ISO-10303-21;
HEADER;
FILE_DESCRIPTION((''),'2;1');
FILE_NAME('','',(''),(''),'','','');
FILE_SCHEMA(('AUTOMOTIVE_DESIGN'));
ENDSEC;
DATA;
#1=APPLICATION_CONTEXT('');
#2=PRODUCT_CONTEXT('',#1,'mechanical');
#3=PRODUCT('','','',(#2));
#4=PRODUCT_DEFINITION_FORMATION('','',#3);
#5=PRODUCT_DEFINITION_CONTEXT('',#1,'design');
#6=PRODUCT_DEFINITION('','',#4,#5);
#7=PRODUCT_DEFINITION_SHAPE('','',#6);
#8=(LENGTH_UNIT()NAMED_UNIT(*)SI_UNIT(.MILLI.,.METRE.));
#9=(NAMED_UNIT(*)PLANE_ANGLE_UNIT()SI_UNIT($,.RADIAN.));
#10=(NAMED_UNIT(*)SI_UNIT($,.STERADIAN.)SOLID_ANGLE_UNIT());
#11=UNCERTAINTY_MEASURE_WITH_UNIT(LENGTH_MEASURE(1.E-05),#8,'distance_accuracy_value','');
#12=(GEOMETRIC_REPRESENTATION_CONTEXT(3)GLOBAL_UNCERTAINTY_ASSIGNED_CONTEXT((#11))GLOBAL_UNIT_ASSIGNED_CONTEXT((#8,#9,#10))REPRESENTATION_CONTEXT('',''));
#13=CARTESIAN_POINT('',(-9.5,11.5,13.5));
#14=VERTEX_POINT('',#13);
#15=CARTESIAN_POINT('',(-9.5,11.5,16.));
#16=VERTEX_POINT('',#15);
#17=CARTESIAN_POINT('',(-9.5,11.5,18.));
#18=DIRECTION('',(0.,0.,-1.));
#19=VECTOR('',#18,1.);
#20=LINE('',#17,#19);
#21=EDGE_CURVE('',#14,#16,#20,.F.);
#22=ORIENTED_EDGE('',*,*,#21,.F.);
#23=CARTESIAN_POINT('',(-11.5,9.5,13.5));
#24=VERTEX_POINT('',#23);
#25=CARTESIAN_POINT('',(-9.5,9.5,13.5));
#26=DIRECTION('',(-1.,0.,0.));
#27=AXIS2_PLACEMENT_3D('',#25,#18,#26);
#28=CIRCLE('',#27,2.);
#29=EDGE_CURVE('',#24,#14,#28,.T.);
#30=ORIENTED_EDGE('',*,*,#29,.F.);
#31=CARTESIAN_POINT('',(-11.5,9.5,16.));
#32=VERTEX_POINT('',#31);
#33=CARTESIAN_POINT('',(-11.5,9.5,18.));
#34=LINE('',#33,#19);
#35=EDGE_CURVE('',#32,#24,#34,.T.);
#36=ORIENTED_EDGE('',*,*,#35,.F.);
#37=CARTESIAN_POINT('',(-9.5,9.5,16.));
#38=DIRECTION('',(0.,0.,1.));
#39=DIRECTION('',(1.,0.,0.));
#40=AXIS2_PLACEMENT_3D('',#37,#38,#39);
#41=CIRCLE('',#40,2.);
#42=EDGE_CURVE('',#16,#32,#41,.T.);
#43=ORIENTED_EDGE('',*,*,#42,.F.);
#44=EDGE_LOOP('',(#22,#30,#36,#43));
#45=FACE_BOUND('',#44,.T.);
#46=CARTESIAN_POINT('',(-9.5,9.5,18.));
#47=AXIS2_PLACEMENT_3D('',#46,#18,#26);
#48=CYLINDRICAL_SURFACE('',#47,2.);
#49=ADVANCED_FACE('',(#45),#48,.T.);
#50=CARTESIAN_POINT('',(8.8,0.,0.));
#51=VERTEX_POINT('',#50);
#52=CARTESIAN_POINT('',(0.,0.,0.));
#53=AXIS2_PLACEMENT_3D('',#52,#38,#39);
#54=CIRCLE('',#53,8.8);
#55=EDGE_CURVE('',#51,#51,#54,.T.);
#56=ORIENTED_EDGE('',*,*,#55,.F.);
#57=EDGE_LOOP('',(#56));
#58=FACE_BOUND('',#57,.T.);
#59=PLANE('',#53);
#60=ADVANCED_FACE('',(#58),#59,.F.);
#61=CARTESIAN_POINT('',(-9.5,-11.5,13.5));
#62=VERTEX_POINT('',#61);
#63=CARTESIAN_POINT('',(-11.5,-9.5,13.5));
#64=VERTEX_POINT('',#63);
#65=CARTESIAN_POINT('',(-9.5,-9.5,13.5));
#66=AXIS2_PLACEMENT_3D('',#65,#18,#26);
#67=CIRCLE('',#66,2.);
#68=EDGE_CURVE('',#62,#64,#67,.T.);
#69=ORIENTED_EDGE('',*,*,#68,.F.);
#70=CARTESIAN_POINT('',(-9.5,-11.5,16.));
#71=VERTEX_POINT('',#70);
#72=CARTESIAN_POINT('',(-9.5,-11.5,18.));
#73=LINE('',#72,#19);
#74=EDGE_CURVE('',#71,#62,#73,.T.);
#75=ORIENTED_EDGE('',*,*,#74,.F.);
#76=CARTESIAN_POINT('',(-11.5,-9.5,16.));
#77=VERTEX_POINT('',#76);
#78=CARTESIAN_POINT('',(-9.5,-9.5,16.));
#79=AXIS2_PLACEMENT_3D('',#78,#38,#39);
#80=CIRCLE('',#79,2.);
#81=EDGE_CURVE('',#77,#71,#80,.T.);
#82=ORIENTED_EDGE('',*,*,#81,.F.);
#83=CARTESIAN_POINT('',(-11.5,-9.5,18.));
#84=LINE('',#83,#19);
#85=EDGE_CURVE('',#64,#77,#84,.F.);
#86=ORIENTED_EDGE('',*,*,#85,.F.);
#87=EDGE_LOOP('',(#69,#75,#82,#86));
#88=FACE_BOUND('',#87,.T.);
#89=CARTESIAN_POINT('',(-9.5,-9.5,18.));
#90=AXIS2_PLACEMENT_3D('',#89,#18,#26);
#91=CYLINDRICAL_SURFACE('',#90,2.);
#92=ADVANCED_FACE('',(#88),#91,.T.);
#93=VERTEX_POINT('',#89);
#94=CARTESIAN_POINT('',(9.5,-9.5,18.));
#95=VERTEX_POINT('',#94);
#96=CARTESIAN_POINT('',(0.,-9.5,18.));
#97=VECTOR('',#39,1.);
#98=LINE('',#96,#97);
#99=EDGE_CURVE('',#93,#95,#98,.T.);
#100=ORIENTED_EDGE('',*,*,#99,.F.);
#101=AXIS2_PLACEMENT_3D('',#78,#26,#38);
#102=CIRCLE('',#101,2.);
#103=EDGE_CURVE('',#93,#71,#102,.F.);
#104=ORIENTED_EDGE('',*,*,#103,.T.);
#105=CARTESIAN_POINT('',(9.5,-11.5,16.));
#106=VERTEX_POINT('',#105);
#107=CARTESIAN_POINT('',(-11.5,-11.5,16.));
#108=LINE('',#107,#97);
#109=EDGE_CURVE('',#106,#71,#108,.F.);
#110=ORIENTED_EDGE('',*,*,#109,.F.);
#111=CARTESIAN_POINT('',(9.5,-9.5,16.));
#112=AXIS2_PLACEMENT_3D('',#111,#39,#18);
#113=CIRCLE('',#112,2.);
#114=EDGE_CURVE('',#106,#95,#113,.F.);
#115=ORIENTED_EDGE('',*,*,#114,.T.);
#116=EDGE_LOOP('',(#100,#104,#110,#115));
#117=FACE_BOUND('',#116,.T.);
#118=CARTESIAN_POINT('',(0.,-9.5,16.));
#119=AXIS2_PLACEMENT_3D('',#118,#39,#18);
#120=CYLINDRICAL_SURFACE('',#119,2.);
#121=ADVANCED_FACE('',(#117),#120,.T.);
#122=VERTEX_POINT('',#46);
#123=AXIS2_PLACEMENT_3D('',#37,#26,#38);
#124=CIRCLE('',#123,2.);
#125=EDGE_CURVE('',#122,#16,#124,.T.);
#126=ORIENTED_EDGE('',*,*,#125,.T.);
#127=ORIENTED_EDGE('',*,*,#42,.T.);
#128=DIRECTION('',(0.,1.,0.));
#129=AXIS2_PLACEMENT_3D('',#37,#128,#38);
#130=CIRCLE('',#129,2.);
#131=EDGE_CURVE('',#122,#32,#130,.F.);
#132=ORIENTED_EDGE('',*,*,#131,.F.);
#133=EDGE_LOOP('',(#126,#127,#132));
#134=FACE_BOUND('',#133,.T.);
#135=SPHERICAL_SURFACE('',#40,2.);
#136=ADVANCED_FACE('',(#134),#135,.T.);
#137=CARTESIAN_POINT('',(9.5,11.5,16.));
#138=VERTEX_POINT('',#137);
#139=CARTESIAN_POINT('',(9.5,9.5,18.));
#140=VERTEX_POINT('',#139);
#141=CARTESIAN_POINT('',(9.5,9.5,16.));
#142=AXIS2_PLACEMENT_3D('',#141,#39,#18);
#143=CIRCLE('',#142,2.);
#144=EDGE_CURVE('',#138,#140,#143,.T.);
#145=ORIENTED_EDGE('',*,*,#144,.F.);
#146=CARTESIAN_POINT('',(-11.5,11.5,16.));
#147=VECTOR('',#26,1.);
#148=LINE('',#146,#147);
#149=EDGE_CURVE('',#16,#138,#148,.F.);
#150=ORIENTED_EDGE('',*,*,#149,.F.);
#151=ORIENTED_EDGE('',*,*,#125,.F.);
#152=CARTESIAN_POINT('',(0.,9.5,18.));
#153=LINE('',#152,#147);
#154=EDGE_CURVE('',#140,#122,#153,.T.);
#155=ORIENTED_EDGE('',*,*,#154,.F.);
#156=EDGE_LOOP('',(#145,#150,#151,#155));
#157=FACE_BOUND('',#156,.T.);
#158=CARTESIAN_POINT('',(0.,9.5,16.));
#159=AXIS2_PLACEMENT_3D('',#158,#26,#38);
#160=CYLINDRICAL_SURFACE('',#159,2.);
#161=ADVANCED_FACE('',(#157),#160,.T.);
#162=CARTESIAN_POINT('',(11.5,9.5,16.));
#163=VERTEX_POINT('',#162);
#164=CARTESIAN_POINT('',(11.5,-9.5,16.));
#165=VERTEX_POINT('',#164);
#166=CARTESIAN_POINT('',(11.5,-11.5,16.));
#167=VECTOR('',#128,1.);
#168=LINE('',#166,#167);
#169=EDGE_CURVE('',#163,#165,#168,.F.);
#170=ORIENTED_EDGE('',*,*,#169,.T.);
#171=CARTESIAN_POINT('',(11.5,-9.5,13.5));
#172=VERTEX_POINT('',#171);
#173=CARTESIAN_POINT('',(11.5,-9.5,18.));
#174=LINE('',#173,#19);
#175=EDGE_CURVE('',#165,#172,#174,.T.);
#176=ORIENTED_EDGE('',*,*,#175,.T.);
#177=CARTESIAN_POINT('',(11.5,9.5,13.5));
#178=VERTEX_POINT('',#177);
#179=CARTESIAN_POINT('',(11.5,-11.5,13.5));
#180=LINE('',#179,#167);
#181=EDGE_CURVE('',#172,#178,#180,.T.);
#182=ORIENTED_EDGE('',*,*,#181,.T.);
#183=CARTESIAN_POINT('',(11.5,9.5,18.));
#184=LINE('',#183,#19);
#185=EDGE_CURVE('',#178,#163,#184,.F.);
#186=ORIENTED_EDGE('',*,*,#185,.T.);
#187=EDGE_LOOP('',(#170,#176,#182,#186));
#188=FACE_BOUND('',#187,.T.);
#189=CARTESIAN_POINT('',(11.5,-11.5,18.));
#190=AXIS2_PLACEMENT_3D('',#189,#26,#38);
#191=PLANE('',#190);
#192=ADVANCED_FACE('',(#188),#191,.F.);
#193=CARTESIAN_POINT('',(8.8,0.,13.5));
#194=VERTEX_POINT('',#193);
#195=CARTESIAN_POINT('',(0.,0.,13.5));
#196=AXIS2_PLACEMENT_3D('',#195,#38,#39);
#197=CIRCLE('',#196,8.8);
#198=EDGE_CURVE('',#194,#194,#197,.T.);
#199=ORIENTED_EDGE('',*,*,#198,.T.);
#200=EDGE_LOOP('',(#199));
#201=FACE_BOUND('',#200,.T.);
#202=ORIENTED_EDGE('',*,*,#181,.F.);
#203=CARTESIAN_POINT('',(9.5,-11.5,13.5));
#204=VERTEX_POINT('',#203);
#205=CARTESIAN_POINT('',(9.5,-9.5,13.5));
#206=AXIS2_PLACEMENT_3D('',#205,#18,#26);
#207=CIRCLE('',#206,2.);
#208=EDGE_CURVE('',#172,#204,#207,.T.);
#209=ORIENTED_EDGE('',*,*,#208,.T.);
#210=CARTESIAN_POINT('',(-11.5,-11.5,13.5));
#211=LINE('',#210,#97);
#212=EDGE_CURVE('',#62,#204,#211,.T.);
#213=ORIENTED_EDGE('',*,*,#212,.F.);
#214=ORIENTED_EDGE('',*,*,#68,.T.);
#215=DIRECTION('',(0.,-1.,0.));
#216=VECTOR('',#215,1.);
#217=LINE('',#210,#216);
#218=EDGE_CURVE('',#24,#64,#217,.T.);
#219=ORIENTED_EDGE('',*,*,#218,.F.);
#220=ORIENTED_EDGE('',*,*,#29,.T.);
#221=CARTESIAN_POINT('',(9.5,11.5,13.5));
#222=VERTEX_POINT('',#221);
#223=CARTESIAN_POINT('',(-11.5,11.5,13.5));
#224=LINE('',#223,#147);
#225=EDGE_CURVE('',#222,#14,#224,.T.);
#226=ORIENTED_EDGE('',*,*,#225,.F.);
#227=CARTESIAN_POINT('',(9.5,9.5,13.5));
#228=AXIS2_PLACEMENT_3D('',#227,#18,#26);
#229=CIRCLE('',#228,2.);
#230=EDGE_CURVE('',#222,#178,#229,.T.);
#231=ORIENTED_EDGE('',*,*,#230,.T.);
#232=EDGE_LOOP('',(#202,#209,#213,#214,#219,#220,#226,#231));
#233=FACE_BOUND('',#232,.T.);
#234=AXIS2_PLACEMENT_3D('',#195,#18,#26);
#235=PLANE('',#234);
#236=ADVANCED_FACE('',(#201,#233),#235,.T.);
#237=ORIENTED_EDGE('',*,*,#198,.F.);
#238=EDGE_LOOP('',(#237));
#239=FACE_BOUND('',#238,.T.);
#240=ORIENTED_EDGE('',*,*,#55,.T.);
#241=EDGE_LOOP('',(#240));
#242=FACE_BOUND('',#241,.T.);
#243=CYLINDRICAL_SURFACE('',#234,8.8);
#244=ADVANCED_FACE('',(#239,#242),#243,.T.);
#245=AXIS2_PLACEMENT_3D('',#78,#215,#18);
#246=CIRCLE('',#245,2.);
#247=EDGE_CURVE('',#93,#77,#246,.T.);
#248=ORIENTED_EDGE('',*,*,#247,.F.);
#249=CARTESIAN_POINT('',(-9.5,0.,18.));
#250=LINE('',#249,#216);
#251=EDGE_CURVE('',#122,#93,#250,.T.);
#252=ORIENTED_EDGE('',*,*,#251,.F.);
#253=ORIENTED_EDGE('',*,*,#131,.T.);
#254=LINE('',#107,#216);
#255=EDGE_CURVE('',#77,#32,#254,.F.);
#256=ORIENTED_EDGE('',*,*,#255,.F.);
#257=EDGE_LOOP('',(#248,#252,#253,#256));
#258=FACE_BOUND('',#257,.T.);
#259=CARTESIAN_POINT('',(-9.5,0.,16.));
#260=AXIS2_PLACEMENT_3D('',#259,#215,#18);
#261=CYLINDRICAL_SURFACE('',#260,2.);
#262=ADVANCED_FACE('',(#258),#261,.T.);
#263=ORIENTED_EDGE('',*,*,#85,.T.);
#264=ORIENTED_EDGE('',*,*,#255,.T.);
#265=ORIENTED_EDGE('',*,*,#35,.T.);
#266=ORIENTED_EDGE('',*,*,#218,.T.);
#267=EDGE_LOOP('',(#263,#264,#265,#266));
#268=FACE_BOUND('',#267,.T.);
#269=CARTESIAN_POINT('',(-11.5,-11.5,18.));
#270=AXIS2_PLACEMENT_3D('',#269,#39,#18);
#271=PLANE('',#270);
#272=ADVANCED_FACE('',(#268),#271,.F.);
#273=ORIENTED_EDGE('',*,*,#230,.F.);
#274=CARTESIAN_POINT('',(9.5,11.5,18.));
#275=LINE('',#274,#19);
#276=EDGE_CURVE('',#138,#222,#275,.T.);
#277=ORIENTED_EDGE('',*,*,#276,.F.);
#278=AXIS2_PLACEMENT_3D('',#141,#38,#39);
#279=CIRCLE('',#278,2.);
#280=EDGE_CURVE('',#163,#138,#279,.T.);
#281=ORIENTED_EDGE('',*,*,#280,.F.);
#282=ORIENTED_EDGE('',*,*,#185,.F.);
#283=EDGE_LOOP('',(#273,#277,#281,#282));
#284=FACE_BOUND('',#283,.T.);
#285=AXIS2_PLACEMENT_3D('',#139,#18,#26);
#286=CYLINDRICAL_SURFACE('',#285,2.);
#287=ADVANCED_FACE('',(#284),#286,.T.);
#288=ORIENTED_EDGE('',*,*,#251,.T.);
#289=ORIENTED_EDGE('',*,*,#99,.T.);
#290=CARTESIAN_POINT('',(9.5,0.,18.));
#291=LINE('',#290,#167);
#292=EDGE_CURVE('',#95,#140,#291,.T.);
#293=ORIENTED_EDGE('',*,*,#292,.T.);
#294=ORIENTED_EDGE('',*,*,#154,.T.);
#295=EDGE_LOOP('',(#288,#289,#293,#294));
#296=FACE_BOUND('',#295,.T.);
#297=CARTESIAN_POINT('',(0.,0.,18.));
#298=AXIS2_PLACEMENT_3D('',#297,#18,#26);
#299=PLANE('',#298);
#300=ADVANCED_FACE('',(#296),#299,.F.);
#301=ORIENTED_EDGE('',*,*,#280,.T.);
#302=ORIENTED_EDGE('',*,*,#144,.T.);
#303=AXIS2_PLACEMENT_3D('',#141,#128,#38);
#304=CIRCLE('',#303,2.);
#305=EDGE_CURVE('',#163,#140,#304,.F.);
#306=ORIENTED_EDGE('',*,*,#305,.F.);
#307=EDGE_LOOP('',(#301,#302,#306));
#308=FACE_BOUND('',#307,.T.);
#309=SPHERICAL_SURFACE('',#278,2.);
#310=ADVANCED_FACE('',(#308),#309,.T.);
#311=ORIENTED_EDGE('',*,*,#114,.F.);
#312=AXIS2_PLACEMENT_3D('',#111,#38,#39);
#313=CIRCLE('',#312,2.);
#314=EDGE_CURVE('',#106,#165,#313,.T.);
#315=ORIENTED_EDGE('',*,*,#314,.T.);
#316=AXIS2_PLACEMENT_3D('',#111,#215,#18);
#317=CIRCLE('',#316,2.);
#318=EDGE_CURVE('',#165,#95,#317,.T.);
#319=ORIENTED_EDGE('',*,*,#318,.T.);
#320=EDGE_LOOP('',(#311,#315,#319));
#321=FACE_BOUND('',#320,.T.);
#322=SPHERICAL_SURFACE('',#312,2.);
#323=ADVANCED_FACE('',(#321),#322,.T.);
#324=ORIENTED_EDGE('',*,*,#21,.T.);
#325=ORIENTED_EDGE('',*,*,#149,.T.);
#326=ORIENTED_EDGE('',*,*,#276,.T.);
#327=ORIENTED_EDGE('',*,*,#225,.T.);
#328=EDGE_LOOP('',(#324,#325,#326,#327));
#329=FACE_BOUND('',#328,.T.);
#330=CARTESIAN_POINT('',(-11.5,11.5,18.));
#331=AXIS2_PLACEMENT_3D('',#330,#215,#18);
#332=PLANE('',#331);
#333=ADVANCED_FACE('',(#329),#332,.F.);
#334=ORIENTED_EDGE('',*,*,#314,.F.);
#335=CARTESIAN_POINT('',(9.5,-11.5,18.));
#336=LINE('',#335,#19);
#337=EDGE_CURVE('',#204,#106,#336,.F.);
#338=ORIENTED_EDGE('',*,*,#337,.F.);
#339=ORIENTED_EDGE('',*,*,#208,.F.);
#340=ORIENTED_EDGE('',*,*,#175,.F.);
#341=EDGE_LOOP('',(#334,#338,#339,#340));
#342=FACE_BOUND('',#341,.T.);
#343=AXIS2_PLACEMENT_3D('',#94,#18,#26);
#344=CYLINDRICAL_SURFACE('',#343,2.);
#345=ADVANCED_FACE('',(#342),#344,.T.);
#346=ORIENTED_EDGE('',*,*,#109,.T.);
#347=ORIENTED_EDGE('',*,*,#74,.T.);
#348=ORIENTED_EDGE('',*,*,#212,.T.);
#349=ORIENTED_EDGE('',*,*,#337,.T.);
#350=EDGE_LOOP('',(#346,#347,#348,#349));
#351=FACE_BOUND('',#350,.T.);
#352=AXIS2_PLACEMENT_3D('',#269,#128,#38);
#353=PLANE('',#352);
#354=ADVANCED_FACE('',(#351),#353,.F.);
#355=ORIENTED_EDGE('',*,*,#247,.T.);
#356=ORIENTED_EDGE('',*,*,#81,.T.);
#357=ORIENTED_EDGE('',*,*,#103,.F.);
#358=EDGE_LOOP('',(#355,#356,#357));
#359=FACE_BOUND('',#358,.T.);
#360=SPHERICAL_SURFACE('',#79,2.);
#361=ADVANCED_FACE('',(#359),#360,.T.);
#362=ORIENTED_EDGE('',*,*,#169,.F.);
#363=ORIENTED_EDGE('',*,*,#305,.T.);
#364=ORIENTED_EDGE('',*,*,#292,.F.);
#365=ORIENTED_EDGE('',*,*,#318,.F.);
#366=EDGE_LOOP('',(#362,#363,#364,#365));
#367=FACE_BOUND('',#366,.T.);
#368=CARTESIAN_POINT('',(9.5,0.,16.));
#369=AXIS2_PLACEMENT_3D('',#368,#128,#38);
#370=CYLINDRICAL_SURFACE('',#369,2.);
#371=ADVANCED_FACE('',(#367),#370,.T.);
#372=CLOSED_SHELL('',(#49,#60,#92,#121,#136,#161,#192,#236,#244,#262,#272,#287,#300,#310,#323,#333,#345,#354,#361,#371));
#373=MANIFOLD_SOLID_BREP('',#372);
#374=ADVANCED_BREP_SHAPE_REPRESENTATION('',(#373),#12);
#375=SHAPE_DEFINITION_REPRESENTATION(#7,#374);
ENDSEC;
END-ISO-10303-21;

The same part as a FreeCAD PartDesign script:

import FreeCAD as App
import Part
import Sketcher

V = App.Vector


def edges_at(feature, points):
    """Names of the edges that pass closest to the given points."""
    edges = feature.Shape.Edges
    near = lambda p: min(range(len(edges)), key=lambda i: edges[i].distToShape(Part.Vertex(*p))[0])
    return sorted({f"Edge{near(p) + 1}" for p in points})

doc = App.newDocument("Part")
body = doc.addObject("PartDesign::Body", "Body")

# Sketch on XY plane
sketch1 = body.newObject("Sketcher::SketchObject", "Sketch")
sketch1.AttachmentSupport = (doc.getObject("XY_Plane"), [""])
sketch1.MapMode = "FlatFace"
sketch1.addGeometry(Part.Circle(V(0, 0, 0), V(0, 0, 1), 9), False)
sketch1.addConstraint(Sketcher.Constraint("Coincident", 0, 3, -1, 1))
sketch1.addConstraint(Sketcher.Constraint("Diameter", 0, 17.6))
pad1 = body.newObject("PartDesign::Pad", "Pad")
pad1.Profile = sketch1
pad1.Length = 13.5

# Sketch on XY plane
sketch2 = body.newObject("Sketcher::SketchObject", "Sketch001")
sketch2.AttachmentSupport = (doc.getObject("XY_Plane"), [""])
sketch2.MapMode = "FlatFace"
sketch2.AttachmentOffset = App.Placement(V(0, 0, 13.5), App.Rotation())
sketch2.addGeometry(Part.LineSegment(V(-12, 12, 0), V(-12, -12, 0)), False)
sketch2.addGeometry(Part.LineSegment(V(-12, -12, 0), V(12, -12, 0)), False)
sketch2.addGeometry(Part.LineSegment(V(12, -12, 0), V(12, 12, 0)), False)
sketch2.addGeometry(Part.LineSegment(V(12, 12, 0), V(-12, 12, 0)), False)
sketch2.addConstraint(Sketcher.Constraint("Coincident", 0, 2, 1, 1))
sketch2.addConstraint(Sketcher.Constraint("Coincident", 1, 2, 2, 1))
sketch2.addConstraint(Sketcher.Constraint("Coincident", 2, 2, 3, 1))
sketch2.addConstraint(Sketcher.Constraint("Coincident", 3, 2, 0, 1))
sketch2.addConstraint(Sketcher.Constraint("Vertical", 0))
sketch2.addConstraint(Sketcher.Constraint("Horizontal", 1))
sketch2.addConstraint(Sketcher.Constraint("Vertical", 2))
sketch2.addConstraint(Sketcher.Constraint("Horizontal", 3))
sketch2.addConstraint(Sketcher.Constraint("Symmetric", 0, 2, 2, 2, -1, 1))
sketch2.addConstraint(Sketcher.Constraint("Equal", 3, 0))
sketch2.addConstraint(Sketcher.Constraint("DistanceX", 1, 1, 1, 2, 23.0))
pad2 = body.newObject("PartDesign::Pad", "Pad001")
pad2.Profile = sketch2
pad2.Length = 4.5
doc.recompute()

fillet = body.newObject("PartDesign::Fillet", "Fillet")
fillet.Base = (pad2, edges_at(pad2, [
    (11.5, -11.5, 15.75),
    (11.5, 11.5, 15.75),
    (-11.5, 11.5, 15.75),
    (-11.5, -11.5, 15.75),
    (11.5, 0, 18),
    (0, 11.5, 18),
    (-11.5, 0, 18),
    (0, -11.5, 18),
]))
fillet.Radius = 2

doc.recompute()
